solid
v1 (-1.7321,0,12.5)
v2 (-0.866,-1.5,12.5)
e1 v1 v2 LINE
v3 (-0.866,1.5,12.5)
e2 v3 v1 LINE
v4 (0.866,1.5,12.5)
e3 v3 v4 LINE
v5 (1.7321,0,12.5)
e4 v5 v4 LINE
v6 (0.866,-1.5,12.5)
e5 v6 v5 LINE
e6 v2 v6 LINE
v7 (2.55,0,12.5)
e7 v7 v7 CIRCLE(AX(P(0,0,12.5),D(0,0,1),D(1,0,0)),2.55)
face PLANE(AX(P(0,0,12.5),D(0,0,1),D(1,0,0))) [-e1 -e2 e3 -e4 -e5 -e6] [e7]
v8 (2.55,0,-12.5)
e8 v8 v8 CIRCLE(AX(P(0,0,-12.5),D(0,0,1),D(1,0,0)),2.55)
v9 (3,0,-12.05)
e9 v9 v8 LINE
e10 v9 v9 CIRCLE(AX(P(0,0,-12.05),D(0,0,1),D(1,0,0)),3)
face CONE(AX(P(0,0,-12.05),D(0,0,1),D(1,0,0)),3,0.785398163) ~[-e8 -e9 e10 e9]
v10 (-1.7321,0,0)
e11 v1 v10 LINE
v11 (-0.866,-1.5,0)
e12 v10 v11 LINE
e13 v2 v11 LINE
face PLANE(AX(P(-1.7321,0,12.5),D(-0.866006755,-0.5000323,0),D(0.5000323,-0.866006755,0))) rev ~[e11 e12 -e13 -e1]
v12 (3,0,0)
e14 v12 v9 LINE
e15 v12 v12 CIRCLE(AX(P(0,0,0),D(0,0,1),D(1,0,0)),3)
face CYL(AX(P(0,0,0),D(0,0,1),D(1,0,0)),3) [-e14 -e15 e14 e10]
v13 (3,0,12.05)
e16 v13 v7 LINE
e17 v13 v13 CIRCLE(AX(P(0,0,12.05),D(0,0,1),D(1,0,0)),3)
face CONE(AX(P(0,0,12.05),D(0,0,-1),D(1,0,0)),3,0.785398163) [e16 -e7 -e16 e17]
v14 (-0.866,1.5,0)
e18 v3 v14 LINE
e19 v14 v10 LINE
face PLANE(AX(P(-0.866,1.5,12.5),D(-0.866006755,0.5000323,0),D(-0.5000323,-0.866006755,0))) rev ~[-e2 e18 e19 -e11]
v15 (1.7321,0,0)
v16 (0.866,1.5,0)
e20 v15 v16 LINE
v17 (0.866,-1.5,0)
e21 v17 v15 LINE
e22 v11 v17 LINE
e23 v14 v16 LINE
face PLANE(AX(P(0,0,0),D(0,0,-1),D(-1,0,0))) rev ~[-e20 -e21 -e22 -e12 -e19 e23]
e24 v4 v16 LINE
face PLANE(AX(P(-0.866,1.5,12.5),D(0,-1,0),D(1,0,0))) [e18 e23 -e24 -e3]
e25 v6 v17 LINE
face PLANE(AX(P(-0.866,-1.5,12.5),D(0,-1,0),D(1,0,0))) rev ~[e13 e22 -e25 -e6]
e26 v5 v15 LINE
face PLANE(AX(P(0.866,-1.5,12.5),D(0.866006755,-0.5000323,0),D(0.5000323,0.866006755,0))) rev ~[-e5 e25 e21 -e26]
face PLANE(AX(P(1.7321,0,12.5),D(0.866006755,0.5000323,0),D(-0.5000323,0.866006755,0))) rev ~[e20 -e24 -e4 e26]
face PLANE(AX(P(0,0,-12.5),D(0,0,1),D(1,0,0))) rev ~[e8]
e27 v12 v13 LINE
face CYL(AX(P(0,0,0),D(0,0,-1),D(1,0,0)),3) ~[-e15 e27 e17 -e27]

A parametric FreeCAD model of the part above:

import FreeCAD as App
import Part
import Sketcher
Q = App.Units.Quantity


def edges_at(feature, points):
    """Names of the edges that pass closest to the given points."""
    edges = feature.Shape.Edges
    near = lambda p: min(range(len(edges)), key=lambda i: edges[i].distToShape(Part.Vertex(*p))[0])
    return sorted({f"Edge{near(p) + 1}" for p in points})

doc = App.newDocument("Part")
body = doc.addObject("PartDesign::Body", "Body")

# Sketch on XY plane
sketch1 = doc.addObject("Sketcher::SketchObject", "Sketch")
body.addObject(sketch1)
sketch1.AttachmentSupport = (doc.XY_Plane, [""])
sketch1.MapMode = "FlatFace"
sketch1.addGeometry(Part.Circle(App.Vector(0, 0, 0), App.Vector(0, 0, 1), 3), False)
sketch1.addConstraint(Sketcher.Constraint("Coincident", 0, 3, -1, 1))
sketch1.addConstraint(Sketcher.Constraint("Diameter", 0, Q("6 mm")))
pad1 = doc.addObject("PartDesign::Pad", "Pad")
body.addObject(pad1)
pad1.Profile = sketch1
pad1.Length = 25
pad1.Midplane = True
doc.recompute()

chamfer = doc.addObject("PartDesign::Chamfer", "Chamfer")
body.addObject(chamfer)
chamfer.Base = (pad1, edges_at(pad1, [(-3, 0, -12.5), (-3, 0, 12.5)]))
chamfer.Size = 0.45

# Sketch on XY plane
sketch2 = doc.addObject("Sketcher::SketchObject", "Sketch001")
body.addObject(sketch2)
sketch2.AttachmentSupport = (doc.XY_Plane, [""])
sketch2.MapMode = "FlatFace"
sketch2.AttachmentOffset = App.Placement(App.Vector(0, 0, 12.5), App.Rotation())
sketch2.addGeometry(Part.LineSegment(App.Vector(0.9, 1.5, 0), App.Vector(-0.9, 1.5, 0)), False)
sketch2.addGeometry(Part.LineSegment(App.Vector(-0.9, 1.5, 0), App.Vector(-1.7, 0, 0)), False)
sketch2.addGeometry(Part.LineSegment(App.Vector(-1.7, 0, 0), App.Vector(-0.9, -1.5, 0)), False)
sketch2.addGeometry(Part.LineSegment(App.Vector(-0.9, -1.5, 0), App.Vector(0.9, -1.5, 0)), False)
sketch2.addGeometry(Part.LineSegment(App.Vector(0.9, -1.5, 0), App.Vector(1.7, 0, 0)), False)
sketch2.addGeometry(Part.LineSegment(App.Vector(1.7, 0, 0), App.Vector(0.9, 1.5, 0)), False)
sketch2.addConstraint(Sketcher.Constraint("Coincident", 0, 2, 1, 1))
sketch2.addConstraint(Sketcher.Constraint("Coincident", 1, 2, 2, 1))
sketch2.addConstraint(Sketcher.Constraint("Coincident", 2, 2, 3, 1))
sketch2.addConstraint(Sketcher.Constraint("Coincident", 3, 2, 4, 1))
sketch2.addConstraint(Sketcher.Constraint("Coincident", 4, 2, 5, 1))
sketch2.addConstraint(Sketcher.Constraint("Coincident", 5, 2, 0, 1))
sketch2.addConstraint(Sketcher.Constraint("Horizontal", 0))
sketch2.addConstraint(Sketcher.Constraint("Horizontal", 3))
sketch2.addConstraint(Sketcher.Constraint("Symmetric", 0, 2, 3, 2, -1, 1))
sketch2.addConstraint(Sketcher.Constraint("Symmetric", 1, 2, 4, 2, -1, 1))
sketch2.addConstraint(Sketcher.Constraint("PointOnObject", 1, 2, -1))
sketch2.addConstraint(Sketcher.Constraint("Parallel", 2, 5))
sketch2.addConstraint(Sketcher.Constraint("Vertical", 0, 2, 2, 2))
sketch2.addConstraint(Sketcher.Constraint("DistanceY", 2, 2, 0, 2, Q("3 mm")))
sketch2.addConstraint(Sketcher.Constraint("DistanceX", 0, 2, 0, 1, Q("1.732 mm")))
sketch2.addConstraint(Sketcher.Constraint("Distance", 1, Q("1.732 mm")))
pocket1 = doc.addObject("PartDesign::Pocket", "Pocket")
body.addObject(pocket1)
pocket1.Profile = sketch2
pocket1.Length = 12.5

doc.recompute()
